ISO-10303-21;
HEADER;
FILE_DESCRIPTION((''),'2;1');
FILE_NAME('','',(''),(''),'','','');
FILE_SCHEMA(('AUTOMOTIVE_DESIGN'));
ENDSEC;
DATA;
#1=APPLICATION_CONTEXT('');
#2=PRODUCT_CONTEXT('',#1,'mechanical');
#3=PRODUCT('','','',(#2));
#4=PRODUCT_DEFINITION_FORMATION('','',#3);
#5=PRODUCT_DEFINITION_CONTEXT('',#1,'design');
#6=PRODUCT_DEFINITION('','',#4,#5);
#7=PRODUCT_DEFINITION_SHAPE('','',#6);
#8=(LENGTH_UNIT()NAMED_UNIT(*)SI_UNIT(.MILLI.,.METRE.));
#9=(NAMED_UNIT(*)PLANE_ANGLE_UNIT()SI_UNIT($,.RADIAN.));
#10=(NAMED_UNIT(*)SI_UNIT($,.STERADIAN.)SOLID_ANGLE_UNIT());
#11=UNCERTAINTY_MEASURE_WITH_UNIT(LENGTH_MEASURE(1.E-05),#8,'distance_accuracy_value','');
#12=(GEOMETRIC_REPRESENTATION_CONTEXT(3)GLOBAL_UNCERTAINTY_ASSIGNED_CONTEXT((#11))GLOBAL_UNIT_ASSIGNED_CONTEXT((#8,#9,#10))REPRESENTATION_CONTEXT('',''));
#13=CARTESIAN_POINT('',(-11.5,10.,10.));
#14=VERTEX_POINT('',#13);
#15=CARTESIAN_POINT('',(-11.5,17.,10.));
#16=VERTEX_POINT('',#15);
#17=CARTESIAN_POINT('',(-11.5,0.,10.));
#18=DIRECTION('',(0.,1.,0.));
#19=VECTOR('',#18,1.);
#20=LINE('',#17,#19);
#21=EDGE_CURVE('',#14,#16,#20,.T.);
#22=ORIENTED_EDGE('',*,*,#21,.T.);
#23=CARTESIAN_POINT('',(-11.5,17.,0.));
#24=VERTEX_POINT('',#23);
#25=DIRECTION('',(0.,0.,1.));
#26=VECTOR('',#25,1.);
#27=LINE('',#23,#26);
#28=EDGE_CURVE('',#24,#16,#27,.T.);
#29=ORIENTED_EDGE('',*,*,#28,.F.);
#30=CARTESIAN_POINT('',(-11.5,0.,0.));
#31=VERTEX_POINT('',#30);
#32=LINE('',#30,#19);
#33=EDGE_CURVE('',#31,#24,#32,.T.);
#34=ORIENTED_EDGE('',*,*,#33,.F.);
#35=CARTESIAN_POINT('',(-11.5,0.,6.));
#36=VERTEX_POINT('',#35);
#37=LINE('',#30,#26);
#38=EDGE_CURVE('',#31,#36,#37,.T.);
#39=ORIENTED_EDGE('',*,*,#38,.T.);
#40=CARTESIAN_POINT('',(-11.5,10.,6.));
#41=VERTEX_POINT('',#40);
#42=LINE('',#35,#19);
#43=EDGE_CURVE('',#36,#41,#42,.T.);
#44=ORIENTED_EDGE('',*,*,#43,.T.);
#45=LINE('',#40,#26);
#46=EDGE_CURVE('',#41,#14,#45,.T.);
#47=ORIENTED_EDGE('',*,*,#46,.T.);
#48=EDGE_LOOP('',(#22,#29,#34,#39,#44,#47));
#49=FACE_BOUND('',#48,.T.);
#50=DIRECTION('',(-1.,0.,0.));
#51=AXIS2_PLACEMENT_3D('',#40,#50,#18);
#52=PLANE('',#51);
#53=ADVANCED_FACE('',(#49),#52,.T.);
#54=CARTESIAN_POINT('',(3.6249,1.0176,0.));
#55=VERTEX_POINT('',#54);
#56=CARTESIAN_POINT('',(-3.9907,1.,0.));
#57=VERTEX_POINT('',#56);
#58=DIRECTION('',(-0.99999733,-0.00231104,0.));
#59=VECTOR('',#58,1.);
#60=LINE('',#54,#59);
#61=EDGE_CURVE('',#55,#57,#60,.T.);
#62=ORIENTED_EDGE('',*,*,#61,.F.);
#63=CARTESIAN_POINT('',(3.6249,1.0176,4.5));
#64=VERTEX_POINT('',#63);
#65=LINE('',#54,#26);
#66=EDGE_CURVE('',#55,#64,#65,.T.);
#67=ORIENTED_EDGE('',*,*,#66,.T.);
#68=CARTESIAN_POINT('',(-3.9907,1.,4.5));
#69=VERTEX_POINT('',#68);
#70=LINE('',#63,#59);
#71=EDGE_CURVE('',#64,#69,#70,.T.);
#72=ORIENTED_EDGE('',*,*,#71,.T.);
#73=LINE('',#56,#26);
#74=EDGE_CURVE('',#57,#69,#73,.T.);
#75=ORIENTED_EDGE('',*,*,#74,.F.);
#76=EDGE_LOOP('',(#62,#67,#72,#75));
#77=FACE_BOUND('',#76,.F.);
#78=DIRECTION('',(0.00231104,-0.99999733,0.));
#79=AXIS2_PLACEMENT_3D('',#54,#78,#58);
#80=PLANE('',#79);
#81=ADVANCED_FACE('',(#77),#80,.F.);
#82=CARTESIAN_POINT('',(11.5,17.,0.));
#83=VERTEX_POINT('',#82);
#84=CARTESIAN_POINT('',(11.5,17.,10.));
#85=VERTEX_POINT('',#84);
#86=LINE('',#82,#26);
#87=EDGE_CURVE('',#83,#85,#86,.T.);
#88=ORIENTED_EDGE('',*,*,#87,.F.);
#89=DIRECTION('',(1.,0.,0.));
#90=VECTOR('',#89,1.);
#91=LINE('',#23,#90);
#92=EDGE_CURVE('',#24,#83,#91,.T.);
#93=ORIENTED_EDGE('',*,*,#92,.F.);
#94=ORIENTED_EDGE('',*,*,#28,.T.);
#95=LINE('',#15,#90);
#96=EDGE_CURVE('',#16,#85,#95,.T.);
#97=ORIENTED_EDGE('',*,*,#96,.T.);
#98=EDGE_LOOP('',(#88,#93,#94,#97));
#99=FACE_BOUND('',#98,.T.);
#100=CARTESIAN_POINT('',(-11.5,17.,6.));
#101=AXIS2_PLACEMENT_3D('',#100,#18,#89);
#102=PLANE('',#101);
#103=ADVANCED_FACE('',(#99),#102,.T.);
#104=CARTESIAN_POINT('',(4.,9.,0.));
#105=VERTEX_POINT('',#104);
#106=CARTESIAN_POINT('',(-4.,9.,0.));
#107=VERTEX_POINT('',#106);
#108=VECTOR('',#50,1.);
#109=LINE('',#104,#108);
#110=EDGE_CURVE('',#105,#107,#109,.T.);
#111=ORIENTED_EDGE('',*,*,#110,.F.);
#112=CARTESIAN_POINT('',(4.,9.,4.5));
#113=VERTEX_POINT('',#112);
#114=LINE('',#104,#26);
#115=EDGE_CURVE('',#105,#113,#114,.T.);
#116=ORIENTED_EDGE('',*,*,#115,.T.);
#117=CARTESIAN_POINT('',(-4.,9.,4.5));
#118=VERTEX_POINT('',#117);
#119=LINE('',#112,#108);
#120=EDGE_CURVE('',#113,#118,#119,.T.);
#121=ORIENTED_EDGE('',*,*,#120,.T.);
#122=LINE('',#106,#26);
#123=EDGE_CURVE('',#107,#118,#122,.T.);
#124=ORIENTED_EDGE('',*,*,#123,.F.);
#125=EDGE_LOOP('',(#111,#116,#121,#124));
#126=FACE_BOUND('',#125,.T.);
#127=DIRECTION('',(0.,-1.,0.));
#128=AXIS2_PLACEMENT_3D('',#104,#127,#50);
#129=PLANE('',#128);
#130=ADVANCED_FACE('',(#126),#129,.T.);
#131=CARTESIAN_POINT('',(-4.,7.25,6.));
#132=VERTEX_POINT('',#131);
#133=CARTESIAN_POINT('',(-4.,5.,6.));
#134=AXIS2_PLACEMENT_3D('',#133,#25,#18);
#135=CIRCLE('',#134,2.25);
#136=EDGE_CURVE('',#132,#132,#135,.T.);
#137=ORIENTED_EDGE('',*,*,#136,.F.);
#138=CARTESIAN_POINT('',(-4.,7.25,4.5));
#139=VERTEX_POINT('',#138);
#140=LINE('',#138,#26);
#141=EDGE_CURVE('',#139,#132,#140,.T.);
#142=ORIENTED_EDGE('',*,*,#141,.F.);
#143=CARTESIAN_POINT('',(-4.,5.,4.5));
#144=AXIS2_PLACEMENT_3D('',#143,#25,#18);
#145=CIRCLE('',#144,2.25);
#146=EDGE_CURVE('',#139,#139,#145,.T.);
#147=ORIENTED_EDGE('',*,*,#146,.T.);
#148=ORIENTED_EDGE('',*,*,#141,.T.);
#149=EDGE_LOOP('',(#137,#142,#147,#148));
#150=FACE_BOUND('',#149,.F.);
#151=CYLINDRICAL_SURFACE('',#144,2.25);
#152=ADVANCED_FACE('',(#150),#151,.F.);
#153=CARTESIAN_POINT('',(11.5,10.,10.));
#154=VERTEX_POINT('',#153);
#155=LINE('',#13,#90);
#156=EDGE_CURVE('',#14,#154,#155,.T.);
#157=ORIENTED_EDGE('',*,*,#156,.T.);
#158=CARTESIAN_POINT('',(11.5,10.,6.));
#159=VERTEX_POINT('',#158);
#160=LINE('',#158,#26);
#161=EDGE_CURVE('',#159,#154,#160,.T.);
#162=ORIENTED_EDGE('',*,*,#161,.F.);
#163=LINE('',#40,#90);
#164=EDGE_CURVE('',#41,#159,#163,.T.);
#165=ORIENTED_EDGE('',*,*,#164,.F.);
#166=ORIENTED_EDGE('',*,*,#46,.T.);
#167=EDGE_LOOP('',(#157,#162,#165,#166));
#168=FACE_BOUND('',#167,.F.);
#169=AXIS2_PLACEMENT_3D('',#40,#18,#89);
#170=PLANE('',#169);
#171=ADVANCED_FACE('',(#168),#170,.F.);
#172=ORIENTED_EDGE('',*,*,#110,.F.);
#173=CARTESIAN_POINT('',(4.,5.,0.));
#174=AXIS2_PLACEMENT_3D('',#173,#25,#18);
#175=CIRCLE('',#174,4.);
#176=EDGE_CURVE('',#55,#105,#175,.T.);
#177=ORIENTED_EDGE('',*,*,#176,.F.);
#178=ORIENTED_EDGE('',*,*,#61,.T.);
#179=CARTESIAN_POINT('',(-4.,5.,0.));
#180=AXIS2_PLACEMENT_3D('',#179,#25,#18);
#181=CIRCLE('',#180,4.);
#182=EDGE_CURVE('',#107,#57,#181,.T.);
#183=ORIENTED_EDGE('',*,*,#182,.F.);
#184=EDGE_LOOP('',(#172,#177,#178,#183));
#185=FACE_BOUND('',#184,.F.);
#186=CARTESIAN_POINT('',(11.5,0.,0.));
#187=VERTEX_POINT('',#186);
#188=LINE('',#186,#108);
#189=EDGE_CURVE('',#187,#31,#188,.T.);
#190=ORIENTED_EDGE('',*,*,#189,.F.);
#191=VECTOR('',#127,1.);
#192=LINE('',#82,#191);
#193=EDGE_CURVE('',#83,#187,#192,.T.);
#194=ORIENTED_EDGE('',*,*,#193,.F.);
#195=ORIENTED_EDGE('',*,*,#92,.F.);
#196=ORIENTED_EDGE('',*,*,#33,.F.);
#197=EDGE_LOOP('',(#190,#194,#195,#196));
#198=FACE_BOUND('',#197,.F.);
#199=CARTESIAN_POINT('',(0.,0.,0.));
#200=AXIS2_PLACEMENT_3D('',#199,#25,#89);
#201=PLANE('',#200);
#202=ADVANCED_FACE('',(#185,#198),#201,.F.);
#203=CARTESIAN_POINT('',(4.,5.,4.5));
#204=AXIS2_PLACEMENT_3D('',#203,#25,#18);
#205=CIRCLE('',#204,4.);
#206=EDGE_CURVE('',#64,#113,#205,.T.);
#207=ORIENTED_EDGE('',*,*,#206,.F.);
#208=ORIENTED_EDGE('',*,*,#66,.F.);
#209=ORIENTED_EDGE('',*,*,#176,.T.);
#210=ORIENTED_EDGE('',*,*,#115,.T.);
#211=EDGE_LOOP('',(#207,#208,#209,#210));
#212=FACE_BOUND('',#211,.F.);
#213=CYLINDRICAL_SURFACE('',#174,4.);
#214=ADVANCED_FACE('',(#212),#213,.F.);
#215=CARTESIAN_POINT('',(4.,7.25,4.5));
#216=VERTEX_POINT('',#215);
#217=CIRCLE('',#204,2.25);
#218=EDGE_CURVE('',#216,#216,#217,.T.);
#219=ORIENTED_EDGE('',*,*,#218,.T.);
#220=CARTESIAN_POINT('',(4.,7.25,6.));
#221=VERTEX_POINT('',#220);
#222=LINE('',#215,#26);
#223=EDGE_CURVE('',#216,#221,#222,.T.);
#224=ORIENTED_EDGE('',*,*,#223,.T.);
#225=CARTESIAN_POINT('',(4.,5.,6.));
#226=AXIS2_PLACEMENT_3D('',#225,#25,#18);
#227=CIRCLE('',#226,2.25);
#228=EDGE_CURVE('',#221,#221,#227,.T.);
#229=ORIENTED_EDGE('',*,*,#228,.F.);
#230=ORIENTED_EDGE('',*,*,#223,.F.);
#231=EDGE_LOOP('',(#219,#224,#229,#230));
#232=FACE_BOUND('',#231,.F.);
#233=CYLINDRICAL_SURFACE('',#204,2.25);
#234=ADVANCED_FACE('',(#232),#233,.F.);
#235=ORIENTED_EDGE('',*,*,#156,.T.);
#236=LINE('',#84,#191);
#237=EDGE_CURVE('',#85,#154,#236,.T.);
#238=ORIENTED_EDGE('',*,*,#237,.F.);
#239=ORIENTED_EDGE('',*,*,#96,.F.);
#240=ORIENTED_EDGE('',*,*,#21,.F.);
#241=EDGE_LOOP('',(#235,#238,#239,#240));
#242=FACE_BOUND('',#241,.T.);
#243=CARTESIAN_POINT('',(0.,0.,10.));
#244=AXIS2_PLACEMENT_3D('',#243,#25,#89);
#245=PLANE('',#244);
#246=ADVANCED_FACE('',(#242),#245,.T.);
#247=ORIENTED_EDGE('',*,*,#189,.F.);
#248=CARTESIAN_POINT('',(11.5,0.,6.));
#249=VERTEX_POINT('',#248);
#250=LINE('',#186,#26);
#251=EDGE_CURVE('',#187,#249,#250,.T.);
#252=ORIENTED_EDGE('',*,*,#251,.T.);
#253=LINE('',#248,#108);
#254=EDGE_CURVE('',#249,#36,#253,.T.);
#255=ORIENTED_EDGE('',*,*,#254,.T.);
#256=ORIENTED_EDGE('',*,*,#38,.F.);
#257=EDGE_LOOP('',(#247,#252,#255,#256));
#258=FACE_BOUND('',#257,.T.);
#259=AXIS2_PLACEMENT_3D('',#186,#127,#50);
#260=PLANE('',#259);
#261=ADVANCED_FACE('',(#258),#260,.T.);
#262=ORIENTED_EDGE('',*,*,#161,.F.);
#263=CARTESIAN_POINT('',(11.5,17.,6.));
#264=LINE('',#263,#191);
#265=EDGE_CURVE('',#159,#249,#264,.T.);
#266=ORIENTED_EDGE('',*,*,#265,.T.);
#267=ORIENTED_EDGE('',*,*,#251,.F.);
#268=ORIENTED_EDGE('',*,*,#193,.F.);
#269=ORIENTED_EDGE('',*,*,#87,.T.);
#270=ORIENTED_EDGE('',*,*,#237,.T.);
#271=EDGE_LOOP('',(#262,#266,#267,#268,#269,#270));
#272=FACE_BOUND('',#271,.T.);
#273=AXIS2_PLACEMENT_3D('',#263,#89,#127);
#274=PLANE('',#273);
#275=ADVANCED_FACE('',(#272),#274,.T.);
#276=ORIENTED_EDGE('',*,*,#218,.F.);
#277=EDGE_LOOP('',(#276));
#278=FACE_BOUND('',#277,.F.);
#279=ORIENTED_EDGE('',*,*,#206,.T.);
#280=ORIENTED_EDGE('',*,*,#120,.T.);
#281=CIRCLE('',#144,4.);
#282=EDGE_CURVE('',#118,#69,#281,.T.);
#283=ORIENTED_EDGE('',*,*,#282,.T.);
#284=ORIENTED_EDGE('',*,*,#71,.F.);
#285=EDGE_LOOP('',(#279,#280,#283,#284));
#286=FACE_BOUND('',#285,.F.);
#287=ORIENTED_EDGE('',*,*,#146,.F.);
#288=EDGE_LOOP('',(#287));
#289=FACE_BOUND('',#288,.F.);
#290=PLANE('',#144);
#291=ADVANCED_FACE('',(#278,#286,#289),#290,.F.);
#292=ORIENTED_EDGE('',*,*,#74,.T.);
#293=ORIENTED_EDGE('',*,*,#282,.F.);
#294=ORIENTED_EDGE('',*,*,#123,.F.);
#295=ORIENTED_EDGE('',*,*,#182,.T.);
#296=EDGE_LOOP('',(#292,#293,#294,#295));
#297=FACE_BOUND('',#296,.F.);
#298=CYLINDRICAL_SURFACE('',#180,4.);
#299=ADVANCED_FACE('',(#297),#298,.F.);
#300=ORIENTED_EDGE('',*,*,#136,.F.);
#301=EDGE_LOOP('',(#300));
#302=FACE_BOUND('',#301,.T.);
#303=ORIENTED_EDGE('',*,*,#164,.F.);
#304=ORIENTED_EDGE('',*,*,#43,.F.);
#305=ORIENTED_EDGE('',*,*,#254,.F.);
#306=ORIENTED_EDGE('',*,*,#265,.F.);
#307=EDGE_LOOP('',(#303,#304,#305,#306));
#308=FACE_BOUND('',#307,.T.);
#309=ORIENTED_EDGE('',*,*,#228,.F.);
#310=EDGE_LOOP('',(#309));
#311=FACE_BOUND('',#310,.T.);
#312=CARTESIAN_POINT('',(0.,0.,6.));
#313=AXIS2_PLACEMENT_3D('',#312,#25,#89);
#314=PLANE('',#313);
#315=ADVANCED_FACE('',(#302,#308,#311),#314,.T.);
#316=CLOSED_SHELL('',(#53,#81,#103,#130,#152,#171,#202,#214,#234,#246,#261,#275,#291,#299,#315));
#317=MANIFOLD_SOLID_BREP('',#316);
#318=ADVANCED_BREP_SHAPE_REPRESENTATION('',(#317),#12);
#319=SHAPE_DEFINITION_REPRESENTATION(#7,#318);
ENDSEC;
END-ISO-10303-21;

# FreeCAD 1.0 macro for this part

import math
import FreeCAD as App
import Part
import Sketcher

V = App.Vector


def add_polygon(sketch, points):
    """Adds a closed chain of lines whose ends are joined by coincident constraints."""
    first, n = sketch.GeometryCount, len(points)
    for a, b in zip(points, points[1:] + points[:1]):
        sketch.addGeometry(Part.LineSegment(App.Vector(*a, 0), App.Vector(*b, 0)), False)
    for i in range(n):
        sketch.addConstraint(Sketcher.Constraint("Coincident", first + i, 2, first + (i + 1) % n, 1))

doc = App.newDocument("Part")
body = doc.addObject("PartDesign::Body", "Body")

sketch1 = body.newObject("Sketcher::SketchObject", "Sketch")
sketch1.AttachmentSupport = (doc.getObject("XY_Plane"), [""])
sketch1.MapMode = "FlatFace"
add_polygon(sketch1, [(12, 17), (-12, 17), (-12, 0), (12, 0)])
sketch1.addConstraint([
    Sketcher.Constraint("Horizontal", 0),
    Sketcher.Constraint("Vertical", 1),
    Sketcher.Constraint("Horizontal", 2),
    Sketcher.Constraint("Vertical", 3),
    Sketcher.Constraint("Symmetric", 1, 2, 2, 2, -1, 1),
    Sketcher.Constraint("DistanceX", 0, 2, 0, 1, 23.0),
    Sketcher.Constraint("DistanceY", 1, 2, 1, 1, 17.0),
])
pad1 = body.newObject("PartDesign::Pad", "Pad")
pad1.Profile = sketch1
pad1.Length = 6

sketch2 = body.newObject("Sketcher::SketchObject", "Sketch001")
sketch2.AttachmentSupport = (doc.getObject("XY_Plane"), [""])
sketch2.MapMode = "FlatFace"
sketch2.addGeometry([
    Part.Circle(V(4, 5, 0), V(0, 0, 1), 2.2),
    Part.Circle(V(-4, 5, 0), V(0, 0, 1), 2.2),
], False)
sketch2.addConstraint([
    Sketcher.Constraint("Equal", 0, 1),
    Sketcher.Constraint("Symmetric", 0, 3, 1, 3, -2),
    Sketcher.Constraint("Diameter", 0, 4.5),
    Sketcher.Constraint("DistanceX", -1, 1, 0, 3, 4.0),
    Sketcher.Constraint("DistanceY", -1, 1, 0, 3, 5.0),
])
doc.recompute()
hole = body.newObject("PartDesign::Hole", "Hole")
hole.Profile = sketch2
hole.ThreadType = "None"
hole.Diameter = 4.5
hole.DepthType = "ThroughAll"
hole.HoleCutType = "Counterbore"
hole.HoleCutDiameter = 8
hole.HoleCutDepth = 4.5
hole.Reversed = True

sketch3 = body.newObject("Sketcher::SketchObject", "Sketch002")
sketch3.AttachmentSupport = (doc.getObject("XY_Plane"), [""])
sketch3.MapMode = "FlatFace"
sketch3.addGeometry([
    Part.ArcOfCircle(Part.Circle(V(-4, 5, 0), V(0, 0, 1), 4), math.radians(0), math.radians(90)),
    Part.LineSegment(V(-4, 9, 0), V(4, 9, 0)),
    Part.ArcOfCircle(Part.Circle(V(4, 5, 0), V(0, 0, 1), 4), math.radians(90), math.radians(180)),
    Part.LineSegment(V(3.6, 1, 0), V(-4, 1, 0)),
    Part.ArcOfCircle(Part.Circle(V(-4, 5, 0), V(0, 0, 1), 4), math.radians(-90), math.radians(0)),
    Part.ArcOfCircle(Part.Circle(V(4, 5, 0), V(0, 0, 1), 4), math.radians(180), math.radians(265)),
], False)
sketch3.addConstraint([
    Sketcher.Constraint("Tangent", 0, 2, 1, 1),
    Sketcher.Constraint("Tangent", 1, 2, 2, 1),
    Sketcher.Constraint("Tangent", 2, 2, 0, 1),
    Sketcher.Constraint("Tangent", 3, 2, 4, 1),
    Sketcher.Constraint("Tangent", 4, 2, 5, 1),
    Sketcher.Constraint("Coincident", 5, 2, 3, 1),
    Sketcher.Constraint("Horizontal", 1),
    Sketcher.Constraint("Coincident", 4, 3, 0, 3),
    Sketcher.Constraint("Coincident", 5, 3, 2, 3),
    Sketcher.Constraint("Equal", 0, 2),
    Sketcher.Constraint("Equal", 2, 4),
    Sketcher.Constraint("PointOnObject", 2, 2, -2),
    Sketcher.Constraint("Radius", 0, 4.0),
    Sketcher.Constraint("DistanceY", -1, 1, 0, 3, 5.0),
    Sketcher.Constraint("DistanceX", -1, 1, 5, 2, 3.625),
])
pocket1 = body.newObject("PartDesign::Pocket", "Pocket")
pocket1.Profile = sketch3
pocket1.Length = 4.5
pocket1.Reversed = True

sketch4 = body.newObject("Sketcher::SketchObject", "Sketch003")
sketch4.AttachmentSupport = (doc.getObject("XY_Plane"), [""])
sketch4.MapMode = "FlatFace"
sketch4.AttachmentOffset = App.Placement(V(0, 0, 6), App.Rotation())
add_polygon(sketch4, [(12, 10), (12, 17), (-12, 17), (-12, 10)])
sketch4.addConstraint([
    Sketcher.Constraint("Vertical", 0),
    Sketcher.Constraint("Horizontal", 1),
    Sketcher.Constraint("Vertical", 2),
    Sketcher.Constraint("Horizontal", 3),
    Sketcher.Constraint("DistanceY", -1, 1, 2, 2, 10.0),
    Sketcher.Constraint("DistanceX", 1, 2, 1, 1, 23.0),
    Sketcher.Constraint("DistanceY", 0, 1, 0, 2, 7.0),
    Sketcher.Constraint("DistanceX", -1, 1, 0, 2, 11.5),
])
pad2 = body.newObject("PartDesign::Pad", "Pad001")
pad2.Profile = sketch4
pad2.Length = 4

doc.recompute()
